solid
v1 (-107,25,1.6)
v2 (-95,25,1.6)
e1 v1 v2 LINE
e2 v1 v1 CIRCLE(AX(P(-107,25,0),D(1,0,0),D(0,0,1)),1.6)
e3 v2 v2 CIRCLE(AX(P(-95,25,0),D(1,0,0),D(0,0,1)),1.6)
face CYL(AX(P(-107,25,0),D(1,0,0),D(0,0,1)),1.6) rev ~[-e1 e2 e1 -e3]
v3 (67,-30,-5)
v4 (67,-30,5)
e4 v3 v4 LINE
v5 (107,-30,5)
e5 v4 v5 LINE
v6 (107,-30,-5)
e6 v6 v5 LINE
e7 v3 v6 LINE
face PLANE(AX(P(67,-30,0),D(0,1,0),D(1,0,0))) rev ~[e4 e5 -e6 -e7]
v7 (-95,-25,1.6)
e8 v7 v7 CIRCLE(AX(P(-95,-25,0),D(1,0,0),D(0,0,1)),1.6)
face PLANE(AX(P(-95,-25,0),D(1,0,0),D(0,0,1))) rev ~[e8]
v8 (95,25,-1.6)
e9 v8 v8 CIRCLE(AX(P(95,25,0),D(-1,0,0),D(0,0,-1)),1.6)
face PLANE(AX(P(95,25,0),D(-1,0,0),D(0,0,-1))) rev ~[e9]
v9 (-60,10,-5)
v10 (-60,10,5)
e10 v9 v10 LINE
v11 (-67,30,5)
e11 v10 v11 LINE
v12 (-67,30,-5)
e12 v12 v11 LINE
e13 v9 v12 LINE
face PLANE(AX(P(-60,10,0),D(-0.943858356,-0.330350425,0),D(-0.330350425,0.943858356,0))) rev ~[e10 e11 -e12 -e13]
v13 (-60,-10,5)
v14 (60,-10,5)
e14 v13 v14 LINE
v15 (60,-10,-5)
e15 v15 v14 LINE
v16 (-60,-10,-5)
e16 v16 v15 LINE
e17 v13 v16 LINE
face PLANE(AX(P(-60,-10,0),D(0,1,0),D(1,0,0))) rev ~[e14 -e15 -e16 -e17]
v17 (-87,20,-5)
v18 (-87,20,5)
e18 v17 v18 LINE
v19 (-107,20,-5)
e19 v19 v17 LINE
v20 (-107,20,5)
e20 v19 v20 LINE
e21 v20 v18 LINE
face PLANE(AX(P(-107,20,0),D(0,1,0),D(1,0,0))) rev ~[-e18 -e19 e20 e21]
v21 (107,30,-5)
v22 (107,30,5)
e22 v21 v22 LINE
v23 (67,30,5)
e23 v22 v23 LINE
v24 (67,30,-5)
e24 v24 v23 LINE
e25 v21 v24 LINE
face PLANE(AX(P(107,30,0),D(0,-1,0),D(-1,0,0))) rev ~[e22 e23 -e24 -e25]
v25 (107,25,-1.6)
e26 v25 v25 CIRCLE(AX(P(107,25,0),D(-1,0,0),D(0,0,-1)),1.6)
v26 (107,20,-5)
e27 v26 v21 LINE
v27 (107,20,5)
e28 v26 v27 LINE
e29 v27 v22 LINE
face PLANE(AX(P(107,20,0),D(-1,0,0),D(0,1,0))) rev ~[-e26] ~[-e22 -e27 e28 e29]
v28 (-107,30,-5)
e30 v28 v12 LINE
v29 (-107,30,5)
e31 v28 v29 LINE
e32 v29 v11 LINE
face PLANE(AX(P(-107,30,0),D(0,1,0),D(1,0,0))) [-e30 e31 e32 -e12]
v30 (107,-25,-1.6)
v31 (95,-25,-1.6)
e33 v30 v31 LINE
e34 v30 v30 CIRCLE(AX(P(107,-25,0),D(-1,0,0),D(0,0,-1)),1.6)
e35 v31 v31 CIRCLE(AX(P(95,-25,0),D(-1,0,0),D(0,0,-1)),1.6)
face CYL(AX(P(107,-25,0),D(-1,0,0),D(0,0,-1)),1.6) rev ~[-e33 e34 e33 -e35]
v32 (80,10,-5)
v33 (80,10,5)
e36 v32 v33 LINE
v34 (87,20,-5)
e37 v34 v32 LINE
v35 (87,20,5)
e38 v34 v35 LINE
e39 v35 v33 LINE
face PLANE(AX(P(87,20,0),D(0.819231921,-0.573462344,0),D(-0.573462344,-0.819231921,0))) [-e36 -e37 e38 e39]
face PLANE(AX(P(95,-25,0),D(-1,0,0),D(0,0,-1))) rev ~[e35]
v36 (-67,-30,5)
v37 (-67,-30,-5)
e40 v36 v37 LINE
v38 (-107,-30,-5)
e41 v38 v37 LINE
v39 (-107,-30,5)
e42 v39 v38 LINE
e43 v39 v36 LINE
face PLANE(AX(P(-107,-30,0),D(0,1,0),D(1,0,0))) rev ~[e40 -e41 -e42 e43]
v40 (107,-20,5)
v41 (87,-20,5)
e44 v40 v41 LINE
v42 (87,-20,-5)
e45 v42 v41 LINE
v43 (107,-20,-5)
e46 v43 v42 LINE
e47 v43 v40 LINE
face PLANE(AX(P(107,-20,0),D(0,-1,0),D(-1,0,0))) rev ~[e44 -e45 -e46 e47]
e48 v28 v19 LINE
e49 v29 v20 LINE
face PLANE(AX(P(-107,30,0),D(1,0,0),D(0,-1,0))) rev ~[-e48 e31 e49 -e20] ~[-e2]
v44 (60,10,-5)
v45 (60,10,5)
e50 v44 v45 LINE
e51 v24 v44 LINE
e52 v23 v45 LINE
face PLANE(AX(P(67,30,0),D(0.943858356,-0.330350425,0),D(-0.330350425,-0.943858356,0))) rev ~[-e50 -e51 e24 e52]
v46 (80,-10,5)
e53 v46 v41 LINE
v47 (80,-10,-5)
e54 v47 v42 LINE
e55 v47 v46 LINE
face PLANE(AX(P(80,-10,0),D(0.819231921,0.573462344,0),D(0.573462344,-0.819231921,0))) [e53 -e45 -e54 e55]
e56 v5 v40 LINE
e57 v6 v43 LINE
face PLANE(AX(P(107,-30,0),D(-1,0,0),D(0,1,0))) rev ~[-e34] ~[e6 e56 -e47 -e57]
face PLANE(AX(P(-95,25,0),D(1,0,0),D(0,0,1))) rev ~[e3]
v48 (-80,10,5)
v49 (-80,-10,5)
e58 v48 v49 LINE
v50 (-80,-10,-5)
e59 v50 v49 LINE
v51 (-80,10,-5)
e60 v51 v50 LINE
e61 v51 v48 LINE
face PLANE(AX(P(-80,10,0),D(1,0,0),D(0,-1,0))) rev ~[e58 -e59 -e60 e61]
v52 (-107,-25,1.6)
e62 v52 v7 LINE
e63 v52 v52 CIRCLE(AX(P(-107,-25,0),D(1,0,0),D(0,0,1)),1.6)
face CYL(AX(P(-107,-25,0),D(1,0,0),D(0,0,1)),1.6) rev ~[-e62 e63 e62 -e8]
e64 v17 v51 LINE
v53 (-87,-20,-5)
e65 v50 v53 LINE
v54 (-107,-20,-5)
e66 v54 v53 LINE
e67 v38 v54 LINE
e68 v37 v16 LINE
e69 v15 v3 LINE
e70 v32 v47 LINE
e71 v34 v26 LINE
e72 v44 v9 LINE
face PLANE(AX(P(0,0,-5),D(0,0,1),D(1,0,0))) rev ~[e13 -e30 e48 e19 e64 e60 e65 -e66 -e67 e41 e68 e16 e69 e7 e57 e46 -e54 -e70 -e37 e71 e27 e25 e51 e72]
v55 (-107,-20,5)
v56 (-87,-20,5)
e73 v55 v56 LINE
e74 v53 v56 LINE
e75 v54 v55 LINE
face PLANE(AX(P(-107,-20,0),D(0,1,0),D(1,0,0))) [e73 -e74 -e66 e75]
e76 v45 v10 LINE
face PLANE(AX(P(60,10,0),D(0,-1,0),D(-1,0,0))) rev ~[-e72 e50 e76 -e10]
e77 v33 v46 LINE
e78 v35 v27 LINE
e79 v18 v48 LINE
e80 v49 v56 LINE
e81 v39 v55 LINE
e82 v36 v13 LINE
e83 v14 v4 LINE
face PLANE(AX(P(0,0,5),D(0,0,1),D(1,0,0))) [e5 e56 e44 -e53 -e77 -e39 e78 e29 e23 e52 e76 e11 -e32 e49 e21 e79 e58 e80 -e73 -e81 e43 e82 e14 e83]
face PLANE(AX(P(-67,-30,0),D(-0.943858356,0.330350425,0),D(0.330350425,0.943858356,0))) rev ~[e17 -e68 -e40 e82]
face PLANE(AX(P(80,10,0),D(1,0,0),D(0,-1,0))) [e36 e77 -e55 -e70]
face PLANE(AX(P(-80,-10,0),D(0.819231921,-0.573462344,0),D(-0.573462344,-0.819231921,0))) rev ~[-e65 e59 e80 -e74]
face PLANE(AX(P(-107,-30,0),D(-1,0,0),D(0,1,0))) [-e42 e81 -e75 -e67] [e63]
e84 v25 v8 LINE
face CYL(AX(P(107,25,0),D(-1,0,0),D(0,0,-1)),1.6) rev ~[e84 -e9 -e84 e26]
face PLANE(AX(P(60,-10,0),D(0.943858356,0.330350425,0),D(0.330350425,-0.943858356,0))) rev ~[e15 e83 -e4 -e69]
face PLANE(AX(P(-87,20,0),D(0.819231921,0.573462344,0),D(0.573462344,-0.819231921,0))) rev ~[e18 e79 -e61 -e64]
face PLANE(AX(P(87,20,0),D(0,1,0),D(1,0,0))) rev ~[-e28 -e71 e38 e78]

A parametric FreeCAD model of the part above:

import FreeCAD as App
import Part
import Sketcher
from FreeCAD import Vector
Q = App.Units.Quantity

doc = App.newDocument("Part")
params = doc.addObject("Spreadsheet::Sheet", "Params")
for row, (alias, value) in enumerate([
    ("sketch1_width", "120 mm"),
    ("sketch1_width2", "40 mm"),
    ("sketch1_width3", "20 mm"),
    ("sketch1_height", "10 mm"),
    ("pad1_length", "10 mm"),
    ("sketch2_diameter", "3.2 mm"),
    ("hole_diameter", "3.2 mm"),
    ("hole_depth", "12 mm"),
    ("sketch3_diameter", "3.2 mm"),
    ("hole2_diameter", "3.2 mm"),
    ("hole2_depth", "12 mm"),
    ("sketch4_diameter", "3.2 mm"),
    ("hole3_diameter", "3.2 mm"),
    ("hole3_depth", "12 mm"),
    ("sketch5_diameter", "3.2 mm"),
    ("hole4_diameter", "3.2 mm"),
    ("hole4_depth", "12 mm"),
], start=1):
    params.set(f"A{row}", alias)
    params.set(f"B{row}", "=" + value)
    params.setAlias(f"B{row}", alias)

body = doc.addObject("PartDesign::Body", "Body")

sketch1 = body.newObject("Sketcher::SketchObject", "Sketch")
sketch1.AttachmentSupport = (doc.getObject("XY_Plane"), [""])
sketch1.MapMode = "FlatFace"
sketch1.addGeometry(Part.LineSegment(Vector(-67, -30, 0), Vector(-60, -10, 0)), False)
sketch1.addGeometry(Part.LineSegment(Vector(-60, -10, 0), Vector(60, -10, 0)), False)
sketch1.addGeometry(Part.LineSegment(Vector(60, -10, 0), Vector(67, -30, 0)), False)
sketch1.addGeometry(Part.LineSegment(Vector(67, -30, 0), Vector(107, -30, 0)), False)
sketch1.addGeometry(Part.LineSegment(Vector(107, -30, 0), Vector(107, -20, 0)), False)
sketch1.addGeometry(Part.LineSegment(Vector(107, -20, 0), Vector(87, -20, 0)), False)
sketch1.addGeometry(Part.LineSegment(Vector(87, -20, 0), Vector(80, -10, 0)), False)
sketch1.addGeometry(Part.LineSegment(Vector(80, -10, 0), Vector(80, 10, 0)), False)
sketch1.addGeometry(Part.LineSegment(Vector(80, 10, 0), Vector(87, 20, 0)), False)
sketch1.addGeometry(Part.LineSegment(Vector(87, 20, 0), Vector(107, 20, 0)), False)
sketch1.addGeometry(Part.LineSegment(Vector(107, 20, 0), Vector(107, 30, 0)), False)
sketch1.addGeometry(Part.LineSegment(Vector(107, 30, 0), Vector(67, 30, 0)), False)
sketch1.addGeometry(Part.LineSegment(Vector(67, 30, 0), Vector(60, 10, 0)), False)
sketch1.addGeometry(Part.LineSegment(Vector(60, 10, 0), Vector(-60, 10, 0)), False)
sketch1.addGeometry(Part.LineSegment(Vector(-60, 10, 0), Vector(-67, 30, 0)), False)
sketch1.addGeometry(Part.LineSegment(Vector(-67, 30, 0), Vector(-107, 30, 0)), False)
sketch1.addGeometry(Part.LineSegment(Vector(-107, 30, 0), Vector(-107, 20, 0)), False)
sketch1.addGeometry(Part.LineSegment(Vector(-107, 20, 0), Vector(-87, 20, 0)), False)
sketch1.addGeometry(Part.LineSegment(Vector(-87, 20, 0), Vector(-80, 10, 0)), False)
sketch1.addGeometry(Part.LineSegment(Vector(-80, 10, 0), Vector(-80, -10, 0)), False)
sketch1.addGeometry(Part.LineSegment(Vector(-80, -10, 0), Vector(-87, -20, 0)), False)
sketch1.addGeometry(Part.LineSegment(Vector(-87, -20, 0), Vector(-107, -20, 0)), False)
sketch1.addGeometry(Part.LineSegment(Vector(-107, -20, 0), Vector(-107, -30, 0)), False)
sketch1.addGeometry(Part.LineSegment(Vector(-107, -30, 0), Vector(-67, -30, 0)), False)
sketch1.addConstraint(Sketcher.Constraint("Coincident", 0, 2, 1, 1))
sketch1.addConstraint(Sketcher.Constraint("Coincident", 1, 2, 2, 1))
sketch1.addConstraint(Sketcher.Constraint("Coincident", 2, 2, 3, 1))
sketch1.addConstraint(Sketcher.Constraint("Coincident", 3, 2, 4, 1))
sketch1.addConstraint(Sketcher.Constraint("Coincident", 4, 2, 5, 1))
sketch1.addConstraint(Sketcher.Constraint("Coincident", 5, 2, 6, 1))
sketch1.addConstraint(Sketcher.Constraint("Coincident", 6, 2, 7, 1))
sketch1.addConstraint(Sketcher.Constraint("Coincident", 7, 2, 8, 1))
sketch1.addConstraint(Sketcher.Constraint("Coincident", 8, 2, 9, 1))
sketch1.addConstraint(Sketcher.Constraint("Coincident", 9, 2, 10, 1))
sketch1.addConstraint(Sketcher.Constraint("Coincident", 10, 2, 11, 1))
sketch1.addConstraint(Sketcher.Constraint("Coincident", 11, 2, 12, 1))
sketch1.addConstraint(Sketcher.Constraint("Coincident", 12, 2, 13, 1))
sketch1.addConstraint(Sketcher.Constraint("Coincident", 13, 2, 14, 1))
sketch1.addConstraint(Sketcher.Constraint("Coincident", 14, 2, 15, 1))
sketch1.addConstraint(Sketcher.Constraint("Coincident", 15, 2, 16, 1))
sketch1.addConstraint(Sketcher.Constraint("Coincident", 16, 2, 17, 1))
sketch1.addConstraint(Sketcher.Constraint("Coincident", 17, 2, 18, 1))
sketch1.addConstraint(Sketcher.Constraint("Coincident", 18, 2, 19, 1))
sketch1.addConstraint(Sketcher.Constraint("Coincident", 19, 2, 20, 1))
sketch1.addConstraint(Sketcher.Constraint("Coincident", 20, 2, 21, 1))
sketch1.addConstraint(Sketcher.Constraint("Coincident", 21, 2, 22, 1))
sketch1.addConstraint(Sketcher.Constraint("Coincident", 22, 2, 23, 1))
sketch1.addConstraint(Sketcher.Constraint("Coincident", 23, 2, 0, 1))
sketch1.addConstraint(Sketcher.Constraint("Horizontal", 1))
sketch1.addConstraint(Sketcher.Constraint("Horizontal", 3))
sketch1.addConstraint(Sketcher.Constraint("Vertical", 4))
sketch1.addConstraint(Sketcher.Constraint("Horizontal", 5))
sketch1.addConstraint(Sketcher.Constraint("Vertical", 7))
sketch1.addConstraint(Sketcher.Constraint("Horizontal", 9))
sketch1.addConstraint(Sketcher.Constraint("Vertical", 10))
sketch1.addConstraint(Sketcher.Constraint("Horizontal", 11))
sketch1.addConstraint(Sketcher.Constraint("Horizontal", 13))
sketch1.addConstraint(Sketcher.Constraint("Horizontal", 15))
sketch1.addConstraint(Sketcher.Constraint("Vertical", 16))
sketch1.addConstraint(Sketcher.Constraint("Horizontal", 17))
sketch1.addConstraint(Sketcher.Constraint("Vertical", 19))
sketch1.addConstraint(Sketcher.Constraint("Horizontal", 21))
sketch1.addConstraint(Sketcher.Constraint("Vertical", 22))
sketch1.addConstraint(Sketcher.Constraint("Horizontal", 23))
sketch1.addConstraint(Sketcher.Constraint("Symmetric", 0, 2, 12, 2, -1, 1))
sketch1.addConstraint(Sketcher.Constraint("Symmetric", 2, 2, 14, 2, -1, 1))
sketch1.addConstraint(Sketcher.Constraint("Symmetric", 4, 2, 16, 2, -1, 1))
sketch1.addConstraint(Sketcher.Constraint("Symmetric", 6, 2, 18, 2, -1, 1))
sketch1.addConstraint(Sketcher.Constraint("Symmetric", 8, 2, 20, 2, -1, 1))
sketch1.addConstraint(Sketcher.Constraint("Symmetric", 10, 2, 22, 2, -1, 1))
sketch1.addConstraint(Sketcher.Constraint("Symmetric", 11, 2, 14, 2, -2))
sketch1.addConstraint(Sketcher.Constraint("Symmetric", 9, 2, 16, 2, -2))
sketch1.addConstraint(Sketcher.Constraint("Parallel", 0, 12))
sketch1.addConstraint(Sketcher.Constraint("Parallel", 2, 14))
sketch1.addConstraint(Sketcher.Constraint("Parallel", 6, 18))
sketch1.addConstraint(Sketcher.Constraint("Parallel", 8, 20))
sketch1.addConstraint(Sketcher.Constraint("Horizontal", 1, 2, 6, 2))
sketch1.addConstraint(Sketcher.Constraint("Horizontal", 7, 2, 12, 2))
sketch1.addConstraint(Sketcher.Constraint("Vertical", 5, 2, 8, 2))
sketch1.addConstraint(Sketcher.Constraint("Vertical", 1, 2, 12, 2))
sketch1.addConstraint(Sketcher.Constraint("Equal", 21, 7))
sketch1.addConstraint(Sketcher.Constraint("DistanceX", 1, 1, 1, 2, Q("120 mm")))
sketch1.addConstraint(Sketcher.Constraint("DistanceX", 3, 1, 3, 2, Q("40 mm")))
sketch1.addConstraint(Sketcher.Constraint("DistanceX", 5, 2, 5, 1, Q("20 mm")))
sketch1.addConstraint(Sketcher.Constraint("DistanceY", 4, 1, 4, 2, Q("10 mm")))
sketch1.addConstraint(Sketcher.Constraint("DistanceX", -1, 1, 2, 2, Q("67 mm")))
sketch1.addConstraint(Sketcher.Constraint("DistanceY", 2, 2, -1, 1, Q("30 mm")))
sketch1.addConstraint(Sketcher.Constraint("DistanceX", -1, 1, 6, 2, Q("80 mm")))
sketch1.setExpression("Constraints[57]", "Params.sketch1_width")
sketch1.setExpression("Constraints[58]", "Params.sketch1_width2")
sketch1.setExpression("Constraints[59]", "Params.sketch1_width3")
sketch1.setExpression("Constraints[60]", "Params.sketch1_height")
pad1 = body.newObject("PartDesign::Pad", "Pad")
pad1.Profile = sketch1
pad1.setExpression("Length", "Params.pad1_length")
pad1.Midplane = True

sketch2 = body.newObject("Sketcher::SketchObject", "Sketch001")
sketch2.AttachmentSupport = (doc.getObject("YZ_Plane"), [""])
sketch2.MapMode = "FlatFace"
sketch2.AttachmentOffset = App.Placement(Vector(0, 0, 107), App.Rotation())
sketch2.addGeometry(Part.Circle(Vector(-25, 0, 0), Vector(0, 0, 1), 1.6), False)
sketch2.addConstraint(Sketcher.Constraint("PointOnObject", 0, 3, -1))
sketch2.addConstraint(Sketcher.Constraint("Diameter", 0, Q("3.2 mm")))
sketch2.addConstraint(Sketcher.Constraint("DistanceX", 0, 3, -1, 1, Q("25 mm")))
sketch2.setExpression("Constraints[1]", "Params.sketch2_diameter")
doc.recompute()
hole = body.newObject("PartDesign::Hole", "Hole")
hole.Profile = sketch2
hole.ThreadType = "None"
hole.setExpression("Diameter", "Params.hole_diameter")
hole.DepthType = "Dimension"
hole.setExpression("Depth", "Params.hole_depth")
hole.DrillPoint = "Flat"

sketch3 = body.newObject("Sketcher::SketchObject", "Sketch002")
sketch3.AttachmentSupport = (doc.getObject("YZ_Plane"), [""])
sketch3.MapMode = "FlatFace"
sketch3.AttachmentOffset = App.Placement(Vector(0, 0, 107), App.Rotation())
sketch3.addGeometry(Part.Circle(Vector(25, 0, 0), Vector(0, 0, 1), 1.6), False)
sketch3.addConstraint(Sketcher.Constraint("PointOnObject", 0, 3, -1))
sketch3.addConstraint(Sketcher.Constraint("Diameter", 0, Q("3.2 mm")))
sketch3.addConstraint(Sketcher.Constraint("DistanceX", -1, 1, 0, 3, Q("25 mm")))
sketch3.setExpression("Constraints[1]", "Params.sketch3_diameter")
doc.recompute()
hole2 = body.newObject("PartDesign::Hole", "Hole001")
hole2.Profile = sketch3
hole2.ThreadType = "None"
hole2.setExpression("Diameter", "Params.hole2_diameter")
hole2.DepthType = "Dimension"
hole2.setExpression("Depth", "Params.hole2_depth")
hole2.DrillPoint = "Flat"

sketch4 = body.newObject("Sketcher::SketchObject", "Sketch003")
sketch4.AttachmentSupport = (doc.getObject("YZ_Plane"), [""])
sketch4.MapMode = "FlatFace"
sketch4.AttachmentOffset = App.Placement(Vector(0, 0, -107), App.Rotation())
sketch4.addGeometry(Part.Circle(Vector(25, 0, 0), Vector(0, 0, 1), 1.6), False)
sketch4.addConstraint(Sketcher.Constraint("PointOnObject", 0, 3, -1))
sketch4.addConstraint(Sketcher.Constraint("Diameter", 0, Q("3.2 mm")))
sketch4.addConstraint(Sketcher.Constraint("DistanceX", -1, 1, 0, 3, Q("25 mm")))
sketch4.setExpression("Constraints[1]", "Params.sketch4_diameter")
doc.recompute()
hole3 = body.newObject("PartDesign::Hole", "Hole002")
hole3.Profile = sketch4
hole3.ThreadType = "None"
hole3.setExpression("Diameter", "Params.hole3_diameter")
hole3.DepthType = "Dimension"
hole3.setExpression("Depth", "Params.hole3_depth")
hole3.DrillPoint = "Flat"
hole3.Reversed = True

sketch5 = body.newObject("Sketcher::SketchObject", "Sketch004")
sketch5.AttachmentSupport = (doc.getObject("YZ_Plane"), [""])
sketch5.MapMode = "FlatFace"
sketch5.AttachmentOffset = App.Placement(Vector(0, 0, -107), App.Rotation())
sketch5.addGeometry(Part.Circle(Vector(-25, 0, 0), Vector(0, 0, 1), 1.6), False)
sketch5.addConstraint(Sketcher.Constraint("PointOnObject", 0, 3, -1))
sketch5.addConstraint(Sketcher.Constraint("Diameter", 0, Q("3.2 mm")))
sketch5.addConstraint(Sketcher.Constraint("DistanceX", 0, 3, -1, 1, Q("25 mm")))
sketch5.setExpression("Constraints[1]", "Params.sketch5_diameter")
doc.recompute()
hole4 = body.newObject("PartDesign::Hole", "Hole003")
hole4.Profile = sketch5
hole4.ThreadType = "None"
hole4.setExpression("Diameter", "Params.hole4_diameter")
hole4.DepthType = "Dimension"
hole4.setExpression("Depth", "Params.hole4_depth")
hole4.DrillPoint = "Flat"
hole4.Reversed = True

doc.recompute()
